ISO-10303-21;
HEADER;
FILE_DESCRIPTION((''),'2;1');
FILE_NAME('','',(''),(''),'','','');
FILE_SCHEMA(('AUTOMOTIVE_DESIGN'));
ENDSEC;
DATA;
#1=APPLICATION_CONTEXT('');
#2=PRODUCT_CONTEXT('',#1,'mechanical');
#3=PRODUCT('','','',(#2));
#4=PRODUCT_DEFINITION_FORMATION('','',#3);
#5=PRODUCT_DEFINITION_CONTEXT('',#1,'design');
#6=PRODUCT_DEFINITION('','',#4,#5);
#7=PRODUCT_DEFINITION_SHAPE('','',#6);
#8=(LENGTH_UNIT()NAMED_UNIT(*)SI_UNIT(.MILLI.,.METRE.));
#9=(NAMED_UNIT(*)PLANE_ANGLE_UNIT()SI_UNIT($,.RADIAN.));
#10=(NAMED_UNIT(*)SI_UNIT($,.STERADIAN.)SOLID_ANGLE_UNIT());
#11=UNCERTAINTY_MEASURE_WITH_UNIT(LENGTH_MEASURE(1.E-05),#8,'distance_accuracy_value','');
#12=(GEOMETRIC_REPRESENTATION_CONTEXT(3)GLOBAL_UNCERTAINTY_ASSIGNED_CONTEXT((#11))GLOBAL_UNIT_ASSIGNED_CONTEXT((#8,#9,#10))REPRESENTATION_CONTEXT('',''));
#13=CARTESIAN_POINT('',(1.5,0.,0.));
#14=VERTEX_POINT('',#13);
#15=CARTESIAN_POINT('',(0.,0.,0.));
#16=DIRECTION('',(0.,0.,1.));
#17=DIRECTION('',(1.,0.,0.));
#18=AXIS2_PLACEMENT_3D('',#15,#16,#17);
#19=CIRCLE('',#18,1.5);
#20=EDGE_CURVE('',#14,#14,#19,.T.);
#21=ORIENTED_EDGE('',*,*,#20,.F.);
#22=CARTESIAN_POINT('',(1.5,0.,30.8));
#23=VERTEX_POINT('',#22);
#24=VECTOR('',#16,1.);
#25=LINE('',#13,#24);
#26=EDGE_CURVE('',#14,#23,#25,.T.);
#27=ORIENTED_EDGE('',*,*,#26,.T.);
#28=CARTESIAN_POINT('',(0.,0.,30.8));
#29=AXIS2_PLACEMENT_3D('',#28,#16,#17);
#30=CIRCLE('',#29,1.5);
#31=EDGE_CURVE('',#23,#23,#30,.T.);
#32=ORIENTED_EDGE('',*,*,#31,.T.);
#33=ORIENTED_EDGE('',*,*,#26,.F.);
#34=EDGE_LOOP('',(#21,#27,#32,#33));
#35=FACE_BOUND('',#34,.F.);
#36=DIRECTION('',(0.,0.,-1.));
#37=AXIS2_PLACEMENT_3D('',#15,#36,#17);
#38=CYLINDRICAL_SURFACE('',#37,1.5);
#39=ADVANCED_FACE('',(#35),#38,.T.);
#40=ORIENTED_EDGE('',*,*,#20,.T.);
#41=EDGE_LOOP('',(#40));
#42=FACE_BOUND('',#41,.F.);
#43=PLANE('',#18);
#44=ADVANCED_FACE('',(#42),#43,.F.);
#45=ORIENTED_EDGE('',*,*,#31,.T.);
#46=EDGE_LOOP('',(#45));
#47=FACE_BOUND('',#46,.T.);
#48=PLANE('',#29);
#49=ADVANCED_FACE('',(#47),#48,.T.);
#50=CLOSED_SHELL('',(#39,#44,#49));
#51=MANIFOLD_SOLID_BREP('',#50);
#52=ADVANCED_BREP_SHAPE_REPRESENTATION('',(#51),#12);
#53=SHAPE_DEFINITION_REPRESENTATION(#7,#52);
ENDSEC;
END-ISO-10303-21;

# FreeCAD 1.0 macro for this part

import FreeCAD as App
import Part
import Sketcher
from FreeCAD import Vector

doc = App.newDocument("Part")
body = doc.addObject("PartDesign::Body", "Body")

# Sketch on XY plane
sketch1 = doc.addObject("Sketcher::SketchObject", "Sketch")
body.addObject(sketch1)
sketch1.AttachmentSupport = (doc.XY_Plane, [""])
sketch1.MapMode = "FlatFace"
sketch1.addGeometry(Part.Circle(Vector(0, 0, 0), Vector(0, 0, 1), 1.5), False)
sketch1.addConstraint([
    Sketcher.Constraint("Coincident", 0, 3, -1, 1),
    Sketcher.Constraint("Diameter", 0, 3.0),
])
pad1 = doc.addObject("PartDesign::Pad", "Pad")
body.addObject(pad1)
pad1.Profile = sketch1
pad1.Length = 30.8

doc.recompute()
